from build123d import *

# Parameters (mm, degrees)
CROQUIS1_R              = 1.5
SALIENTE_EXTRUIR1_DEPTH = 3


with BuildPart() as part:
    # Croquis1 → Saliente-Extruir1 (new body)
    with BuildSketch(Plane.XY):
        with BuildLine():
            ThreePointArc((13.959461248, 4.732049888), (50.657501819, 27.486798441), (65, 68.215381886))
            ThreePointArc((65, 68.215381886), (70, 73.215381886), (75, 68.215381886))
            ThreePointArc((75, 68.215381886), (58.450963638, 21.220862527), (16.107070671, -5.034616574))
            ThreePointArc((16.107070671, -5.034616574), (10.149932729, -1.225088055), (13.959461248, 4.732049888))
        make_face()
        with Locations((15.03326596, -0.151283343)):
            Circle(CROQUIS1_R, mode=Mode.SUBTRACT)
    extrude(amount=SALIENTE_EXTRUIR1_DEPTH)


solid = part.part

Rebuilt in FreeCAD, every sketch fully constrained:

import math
import FreeCAD as App
import Part
import Sketcher
from FreeCAD import Vector
Q = App.Units.Quantity

doc = App.newDocument("Part")
body = doc.addObject("PartDesign::Body", "Body")

# Sketch on XY plane
sketch1 = doc.addObject("Sketcher::SketchObject", "Sketch")
body.addObject(sketch1)
sketch1.AttachmentSupport = (doc.XY_Plane, [""])
sketch1.MapMode = "FlatFace"
sketch1.addGeometry([
    Part.ArcOfCircle(Part.Circle(Vector(0, 68.2, 0), Vector(0, 0, 1), 65), math.radians(-78), math.radians(0)),  # 0
    Part.ArcOfCircle(Part.Circle(Vector(15, -0.2, 0), Vector(0, 0, 1), 5), math.radians(102), math.radians(282)),  # 1
    Part.ArcOfCircle(Part.Circle(Vector(0, 68.2, 0), Vector(0, 0, 1), 75), math.radians(-78), math.radians(0)),  # 2
    Part.ArcOfCircle(Part.Circle(Vector(70, 68.2, 0), Vector(0, 0, 1), 5), math.radians(0), math.radians(180)),  # 3
    Part.Circle(Vector(15, -0.2, 0), Vector(0, 0, 1), 1.5),  # 4
], False)
sketch1.addConstraint([
    Sketcher.Constraint("Tangent", 0, 1, 1, 1),
    Sketcher.Constraint("Tangent", 1, 2, 2, 1),
    Sketcher.Constraint("Tangent", 2, 2, 3, 1),
    Sketcher.Constraint("Tangent", 3, 2, 0, 2),
    Sketcher.Constraint("Coincident", 2, 3, 0, 3),
    Sketcher.Constraint("Coincident", 4, 3, 1, 3),
    Sketcher.Constraint("PointOnObject", 0, 3, -2),
    Sketcher.Constraint("Horizontal", 2, 3, 3, 3),
    Sketcher.Constraint("Diameter", 4, Q("3 mm")),
    Sketcher.Constraint("Radius", 0, Q("65 mm")),
    Sketcher.Constraint("Radius", 1, Q("5 mm")),
    Sketcher.Constraint("DistanceY", 1, 2, 0, 3, Q("73.249998 mm")),
    Sketcher.Constraint("DistanceY", -1, 1, 0, 3, Q("68.215382 mm")),
])
pad1 = doc.addObject("PartDesign::Pad", "Pad")
body.addObject(pad1)
pad1.Profile = sketch1
pad1.Length = 3

doc.recompute()
